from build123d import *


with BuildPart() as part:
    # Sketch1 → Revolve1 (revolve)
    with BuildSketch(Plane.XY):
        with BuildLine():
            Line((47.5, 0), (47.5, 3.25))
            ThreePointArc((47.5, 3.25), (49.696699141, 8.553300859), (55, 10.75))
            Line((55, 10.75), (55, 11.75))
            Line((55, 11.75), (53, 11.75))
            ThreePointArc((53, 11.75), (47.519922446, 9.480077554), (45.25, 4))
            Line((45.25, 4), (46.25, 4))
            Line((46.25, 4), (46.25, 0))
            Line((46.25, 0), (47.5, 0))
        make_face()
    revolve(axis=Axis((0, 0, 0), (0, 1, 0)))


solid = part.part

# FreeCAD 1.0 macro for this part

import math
import FreeCAD as App
import Part
import Sketcher
Q = App.Units.Quantity

doc = App.newDocument("Part")
body = doc.addObject("PartDesign::Body", "Body")

sketch1 = doc.addObject("Sketcher::SketchObject", "Sketch")
body.addObject(sketch1)
sketch1.AttachmentSupport = (doc.XY_Plane, [""])
sketch1.MapMode = "FlatFace"
sketch1.addGeometry(Part.LineSegment(App.Vector(47.5, 0, 0), App.Vector(47.5, 3.2, 0)), False)
sketch1.addGeometry(Part.ArcOfCircle(Part.Circle(App.Vector(55, 3.2, 0), App.Vector(0, 0, 1), 7.5), math.radians(90), math.radians(180)), False)
sketch1.addGeometry(Part.LineSegment(App.Vector(55, 10.8, 0), App.Vector(55, 11.8, 0)), False)
sketch1.addGeometry(Part.LineSegment(App.Vector(55, 11.8, 0), App.Vector(53, 11.8, 0)), False)
sketch1.addGeometry(Part.ArcOfCircle(Part.Circle(App.Vector(53, 4, 0), App.Vector(0, 0, 1), 7.8), math.radians(90), math.radians(180)), False)
sketch1.addGeometry(Part.LineSegment(App.Vector(45.2, 4, 0), App.Vector(46.2, 4, 0)), False)
sketch1.addGeometry(Part.LineSegment(App.Vector(46.2, 4, 0), App.Vector(46.2, 0, 0)), False)
sketch1.addGeometry(Part.LineSegment(App.Vector(46.2, 0, 0), App.Vector(47.5, 0, 0)), False)
sketch1.addConstraint(Sketcher.Constraint("Tangent", 0, 2, 1, 2))
sketch1.addConstraint(Sketcher.Constraint("Coincident", 1, 1, 2, 1))
sketch1.addConstraint(Sketcher.Constraint("Coincident", 2, 2, 3, 1))
sketch1.addConstraint(Sketcher.Constraint("Tangent", 3, 2, 4, 1))
sketch1.addConstraint(Sketcher.Constraint("Coincident", 4, 2, 5, 1))
sketch1.addConstraint(Sketcher.Constraint("Coincident", 5, 2, 6, 1))
sketch1.addConstraint(Sketcher.Constraint("Coincident", 6, 2, 7, 1))
sketch1.addConstraint(Sketcher.Constraint("Coincident", 7, 2, 0, 1))
sketch1.addConstraint(Sketcher.Constraint("Vertical", 0))
sketch1.addConstraint(Sketcher.Constraint("Vertical", 2))
sketch1.addConstraint(Sketcher.Constraint("Horizontal", 3))
sketch1.addConstraint(Sketcher.Constraint("Horizontal", 5))
sketch1.addConstraint(Sketcher.Constraint("Vertical", 6))
sketch1.addConstraint(Sketcher.Constraint("Horizontal", 7))
sketch1.addConstraint(Sketcher.Constraint("PointOnObject", 6, 2, -1))
sketch1.addConstraint(Sketcher.Constraint("Equal", 5, 2))
sketch1.addConstraint(Sketcher.Constraint("Radius", 1, Q("7.5 mm")))
sketch1.addConstraint(Sketcher.Constraint("DistanceX", 3, 2, 3, 1, Q("2 mm")))
sketch1.addConstraint(Sketcher.Constraint("DistanceX", 5, 1, 5, 2, Q("1 mm")))
sketch1.addConstraint(Sketcher.Constraint("DistanceY", 6, 2, 6, 1, Q("4 mm")))
sketch1.addConstraint(Sketcher.Constraint("Radius", 4, Q("7.75 mm")))
sketch1.addConstraint(Sketcher.Constraint("DistanceX", -1, 1, 1, 3, Q("55 mm")))
sketch1.addConstraint(Sketcher.Constraint("DistanceX", -1, 1, 4, 3, Q("53 mm")))
sketch1.addConstraint(Sketcher.Constraint("DistanceY", -1, 1, 4, 3, Q("4 mm")))
revolution = doc.addObject("PartDesign::Revolution", "Revolution")
body.addObject(revolution)
revolution.Profile = sketch1
revolution.ReferenceAxis = (sketch1, ["V_Axis"])
revolution.Angle = 360

doc.recompute()
